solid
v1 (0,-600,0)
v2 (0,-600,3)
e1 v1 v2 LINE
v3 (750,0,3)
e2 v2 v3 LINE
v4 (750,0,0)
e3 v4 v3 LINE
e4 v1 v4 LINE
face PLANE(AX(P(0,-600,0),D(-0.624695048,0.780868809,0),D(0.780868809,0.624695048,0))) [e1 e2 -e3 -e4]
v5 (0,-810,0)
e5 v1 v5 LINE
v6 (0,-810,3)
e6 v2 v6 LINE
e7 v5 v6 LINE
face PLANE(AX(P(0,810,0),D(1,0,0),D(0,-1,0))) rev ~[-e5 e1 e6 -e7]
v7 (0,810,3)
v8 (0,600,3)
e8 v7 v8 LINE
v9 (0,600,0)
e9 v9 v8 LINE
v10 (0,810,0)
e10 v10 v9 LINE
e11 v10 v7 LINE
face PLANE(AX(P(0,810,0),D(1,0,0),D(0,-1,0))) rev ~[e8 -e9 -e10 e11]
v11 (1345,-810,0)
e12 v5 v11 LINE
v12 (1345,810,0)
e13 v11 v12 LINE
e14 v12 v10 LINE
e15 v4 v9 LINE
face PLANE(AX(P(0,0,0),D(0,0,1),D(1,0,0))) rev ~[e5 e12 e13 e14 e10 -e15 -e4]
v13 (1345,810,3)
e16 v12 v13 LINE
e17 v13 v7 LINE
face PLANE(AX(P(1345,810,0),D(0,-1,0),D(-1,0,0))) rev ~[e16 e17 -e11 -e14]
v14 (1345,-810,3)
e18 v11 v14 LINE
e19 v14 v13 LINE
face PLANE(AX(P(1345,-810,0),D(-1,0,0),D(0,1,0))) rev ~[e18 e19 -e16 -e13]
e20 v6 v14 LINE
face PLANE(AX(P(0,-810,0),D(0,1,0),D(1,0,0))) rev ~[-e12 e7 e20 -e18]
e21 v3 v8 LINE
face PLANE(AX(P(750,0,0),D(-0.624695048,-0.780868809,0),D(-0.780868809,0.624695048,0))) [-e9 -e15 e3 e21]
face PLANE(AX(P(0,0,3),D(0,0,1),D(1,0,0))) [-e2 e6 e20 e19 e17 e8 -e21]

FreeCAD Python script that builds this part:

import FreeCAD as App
import Part
import Sketcher
Q = App.Units.Quantity

doc = App.newDocument("Part")
body = doc.addObject("PartDesign::Body", "Body")

sketch1 = doc.addObject("Sketcher::SketchObject", "Sketch")
body.addObject(sketch1)
sketch1.AttachmentSupport = (doc.XY_Plane, [""])
sketch1.MapMode = "FlatFace"
sketch1.addGeometry(Part.LineSegment(App.Vector(0, 810, 0), App.Vector(0, -810, 0)), False)
sketch1.addGeometry(Part.LineSegment(App.Vector(0, -810, 0), App.Vector(1345, -810, 0)), False)
sketch1.addGeometry(Part.LineSegment(App.Vector(1345, -810, 0), App.Vector(1345, 810, 0)), False)
sketch1.addGeometry(Part.LineSegment(App.Vector(1345, 810, 0), App.Vector(0, 810, 0)), False)
sketch1.addConstraint(Sketcher.Constraint("Coincident", 0, 2, 1, 1))
sketch1.addConstraint(Sketcher.Constraint("Coincident", 1, 2, 2, 1))
sketch1.addConstraint(Sketcher.Constraint("Coincident", 2, 2, 3, 1))
sketch1.addConstraint(Sketcher.Constraint("Coincident", 3, 2, 0, 1))
sketch1.addConstraint(Sketcher.Constraint("Vertical", 0))
sketch1.addConstraint(Sketcher.Constraint("Horizontal", 1))
sketch1.addConstraint(Sketcher.Constraint("Vertical", 2))
sketch1.addConstraint(Sketcher.Constraint("Horizontal", 3))
sketch1.addConstraint(Sketcher.Constraint("Symmetric", 0, 2, 3, 2, -1, 1))
sketch1.addConstraint(Sketcher.Constraint("DistanceX", 1, 1, 1, 2, Q("1345 mm")))
sketch1.addConstraint(Sketcher.Constraint("DistanceY", 0, 2, 0, 1, Q("1620 mm")))
pad1 = doc.addObject("PartDesign::Pad", "Pad")
body.addObject(pad1)
pad1.Profile = sketch1
pad1.Length = 3

sketch2 = doc.addObject("Sketcher::SketchObject", "Sketch001")
body.addObject(sketch2)
sketch2.AttachmentSupport = (doc.XY_Plane, [""])
sketch2.MapMode = "FlatFace"
sketch2.addGeometry(Part.LineSegment(App.Vector(0, -600, 0), App.Vector(0, 600, 0)), False)
sketch2.addGeometry(Part.LineSegment(App.Vector(0, 600, 0), App.Vector(750, 0, 0)), False)
sketch2.addGeometry(Part.LineSegment(App.Vector(750, 0, 0), App.Vector(0, -600, 0)), False)
sketch2.addConstraint(Sketcher.Constraint("Coincident", 0, 2, 1, 1))
sketch2.addConstraint(Sketcher.Constraint("Coincident", 1, 2, 2, 1))
sketch2.addConstraint(Sketcher.Constraint("Coincident", 2, 2, 0, 1))
sketch2.addConstraint(Sketcher.Constraint("Vertical", 0))
sketch2.addConstraint(Sketcher.Constraint("Symmetric", 0, 2, 2, 2, -1, 1))
sketch2.addConstraint(Sketcher.Constraint("PointOnObject", 1, 2, -1))
sketch2.addConstraint(Sketcher.Constraint("DistanceY", 0, 1, 0, 2, Q("1200 mm")))
sketch2.addConstraint(Sketcher.Constraint("DistanceX", -1, 1, 1, 2, Q("750 mm")))
pocket1 = doc.addObject("PartDesign::Pocket", "Pocket")
body.addObject(pocket1)
pocket1.Profile = sketch2
pocket1.Length = 3
pocket1.Reversed = True

doc.recompute()
